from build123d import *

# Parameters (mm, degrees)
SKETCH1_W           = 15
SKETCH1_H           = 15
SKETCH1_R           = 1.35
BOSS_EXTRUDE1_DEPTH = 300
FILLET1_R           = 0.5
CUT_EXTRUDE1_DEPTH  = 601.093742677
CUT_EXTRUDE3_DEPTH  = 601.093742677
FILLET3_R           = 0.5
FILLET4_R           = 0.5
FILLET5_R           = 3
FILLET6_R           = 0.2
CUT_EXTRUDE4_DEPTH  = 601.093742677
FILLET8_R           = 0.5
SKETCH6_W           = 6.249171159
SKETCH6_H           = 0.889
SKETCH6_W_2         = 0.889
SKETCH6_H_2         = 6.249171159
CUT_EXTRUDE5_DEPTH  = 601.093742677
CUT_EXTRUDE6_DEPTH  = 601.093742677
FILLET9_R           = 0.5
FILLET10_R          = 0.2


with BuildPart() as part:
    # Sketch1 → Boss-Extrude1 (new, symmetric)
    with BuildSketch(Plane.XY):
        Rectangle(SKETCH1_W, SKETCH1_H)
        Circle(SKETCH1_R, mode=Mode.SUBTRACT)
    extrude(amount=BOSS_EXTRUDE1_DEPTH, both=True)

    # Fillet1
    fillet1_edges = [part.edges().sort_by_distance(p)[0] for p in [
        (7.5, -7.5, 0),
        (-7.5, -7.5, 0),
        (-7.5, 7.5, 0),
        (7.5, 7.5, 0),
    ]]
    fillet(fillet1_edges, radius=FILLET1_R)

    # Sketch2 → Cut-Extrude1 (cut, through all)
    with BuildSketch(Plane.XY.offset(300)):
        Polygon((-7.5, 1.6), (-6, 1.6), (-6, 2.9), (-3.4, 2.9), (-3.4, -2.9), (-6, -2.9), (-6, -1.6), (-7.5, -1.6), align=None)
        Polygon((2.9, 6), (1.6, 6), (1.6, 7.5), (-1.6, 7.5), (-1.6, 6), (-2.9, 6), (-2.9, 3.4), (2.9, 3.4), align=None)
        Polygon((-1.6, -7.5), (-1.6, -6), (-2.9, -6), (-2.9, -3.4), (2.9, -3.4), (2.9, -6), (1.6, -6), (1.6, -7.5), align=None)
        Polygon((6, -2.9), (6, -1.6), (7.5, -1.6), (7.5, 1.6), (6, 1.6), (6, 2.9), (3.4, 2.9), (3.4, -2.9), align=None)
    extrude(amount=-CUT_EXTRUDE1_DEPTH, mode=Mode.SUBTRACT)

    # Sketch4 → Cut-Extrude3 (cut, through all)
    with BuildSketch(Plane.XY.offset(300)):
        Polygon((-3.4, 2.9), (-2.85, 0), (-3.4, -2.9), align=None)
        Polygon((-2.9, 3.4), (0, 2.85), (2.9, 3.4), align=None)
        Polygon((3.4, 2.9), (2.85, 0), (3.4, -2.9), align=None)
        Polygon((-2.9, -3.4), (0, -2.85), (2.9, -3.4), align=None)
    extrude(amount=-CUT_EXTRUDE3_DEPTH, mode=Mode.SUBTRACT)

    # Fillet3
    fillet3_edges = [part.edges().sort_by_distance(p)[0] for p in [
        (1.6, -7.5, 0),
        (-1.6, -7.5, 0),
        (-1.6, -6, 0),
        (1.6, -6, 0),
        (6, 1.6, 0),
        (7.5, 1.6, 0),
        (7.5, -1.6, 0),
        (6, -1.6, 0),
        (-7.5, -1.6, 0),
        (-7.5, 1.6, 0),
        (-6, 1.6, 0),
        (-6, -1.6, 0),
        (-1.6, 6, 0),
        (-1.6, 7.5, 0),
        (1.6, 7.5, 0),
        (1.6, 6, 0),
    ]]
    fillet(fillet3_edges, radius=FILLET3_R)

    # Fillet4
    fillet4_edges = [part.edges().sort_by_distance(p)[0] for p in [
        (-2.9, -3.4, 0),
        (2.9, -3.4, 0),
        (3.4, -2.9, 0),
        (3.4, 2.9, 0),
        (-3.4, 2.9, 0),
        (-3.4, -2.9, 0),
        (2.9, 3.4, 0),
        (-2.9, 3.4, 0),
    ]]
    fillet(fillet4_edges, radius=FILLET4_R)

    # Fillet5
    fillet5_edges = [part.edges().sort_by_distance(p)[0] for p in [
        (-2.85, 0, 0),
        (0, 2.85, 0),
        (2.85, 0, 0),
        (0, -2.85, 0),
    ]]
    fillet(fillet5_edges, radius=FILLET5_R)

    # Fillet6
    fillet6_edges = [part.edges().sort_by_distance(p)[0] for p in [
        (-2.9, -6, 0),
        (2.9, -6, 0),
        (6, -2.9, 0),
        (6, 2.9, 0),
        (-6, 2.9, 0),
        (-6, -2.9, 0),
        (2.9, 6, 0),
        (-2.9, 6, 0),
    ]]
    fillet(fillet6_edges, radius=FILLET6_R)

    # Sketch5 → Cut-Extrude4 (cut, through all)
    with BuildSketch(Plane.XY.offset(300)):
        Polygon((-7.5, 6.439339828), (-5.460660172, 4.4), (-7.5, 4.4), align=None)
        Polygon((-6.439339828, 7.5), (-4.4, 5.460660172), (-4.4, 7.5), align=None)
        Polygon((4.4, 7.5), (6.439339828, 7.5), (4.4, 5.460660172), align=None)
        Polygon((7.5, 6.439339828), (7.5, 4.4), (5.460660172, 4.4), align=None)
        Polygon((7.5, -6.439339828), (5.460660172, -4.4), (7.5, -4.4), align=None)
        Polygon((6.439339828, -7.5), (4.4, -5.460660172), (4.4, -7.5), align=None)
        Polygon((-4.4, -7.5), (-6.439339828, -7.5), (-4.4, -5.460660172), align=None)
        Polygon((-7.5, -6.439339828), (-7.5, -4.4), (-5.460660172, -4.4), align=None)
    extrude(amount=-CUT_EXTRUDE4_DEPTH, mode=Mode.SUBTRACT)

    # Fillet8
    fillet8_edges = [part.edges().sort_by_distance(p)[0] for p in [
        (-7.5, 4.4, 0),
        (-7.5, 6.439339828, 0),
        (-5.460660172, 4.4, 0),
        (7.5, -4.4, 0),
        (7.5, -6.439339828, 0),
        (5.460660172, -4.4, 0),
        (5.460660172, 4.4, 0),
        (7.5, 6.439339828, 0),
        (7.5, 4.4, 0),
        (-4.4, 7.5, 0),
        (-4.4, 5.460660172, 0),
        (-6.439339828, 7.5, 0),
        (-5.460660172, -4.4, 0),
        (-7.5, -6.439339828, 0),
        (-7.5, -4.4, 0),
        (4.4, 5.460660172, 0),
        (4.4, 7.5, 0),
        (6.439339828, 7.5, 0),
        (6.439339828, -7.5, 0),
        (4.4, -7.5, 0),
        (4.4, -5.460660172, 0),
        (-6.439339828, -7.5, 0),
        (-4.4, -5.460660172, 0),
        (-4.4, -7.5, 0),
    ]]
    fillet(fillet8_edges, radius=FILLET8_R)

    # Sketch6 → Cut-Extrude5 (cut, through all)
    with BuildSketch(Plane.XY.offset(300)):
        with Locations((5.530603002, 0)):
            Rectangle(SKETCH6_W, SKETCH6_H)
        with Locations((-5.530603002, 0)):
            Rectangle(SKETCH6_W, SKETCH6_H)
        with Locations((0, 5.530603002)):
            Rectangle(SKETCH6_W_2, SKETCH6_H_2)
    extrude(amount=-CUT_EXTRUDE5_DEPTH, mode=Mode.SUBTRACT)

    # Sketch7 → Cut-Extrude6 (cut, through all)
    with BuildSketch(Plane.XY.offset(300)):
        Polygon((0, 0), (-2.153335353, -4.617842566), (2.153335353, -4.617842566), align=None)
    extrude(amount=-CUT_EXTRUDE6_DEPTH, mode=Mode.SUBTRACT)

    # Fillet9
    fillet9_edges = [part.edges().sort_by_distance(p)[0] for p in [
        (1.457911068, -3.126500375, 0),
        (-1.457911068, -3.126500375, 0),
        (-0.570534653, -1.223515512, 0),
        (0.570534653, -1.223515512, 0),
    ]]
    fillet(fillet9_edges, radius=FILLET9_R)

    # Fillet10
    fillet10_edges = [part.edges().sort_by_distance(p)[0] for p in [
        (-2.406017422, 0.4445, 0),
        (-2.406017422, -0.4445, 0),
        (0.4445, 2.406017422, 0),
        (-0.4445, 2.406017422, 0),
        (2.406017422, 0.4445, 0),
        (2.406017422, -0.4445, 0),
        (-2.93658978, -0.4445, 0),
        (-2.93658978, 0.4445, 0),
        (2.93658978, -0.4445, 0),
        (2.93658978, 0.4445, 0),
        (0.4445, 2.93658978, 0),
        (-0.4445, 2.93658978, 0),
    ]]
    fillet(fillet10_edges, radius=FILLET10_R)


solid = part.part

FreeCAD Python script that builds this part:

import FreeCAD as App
import Part
import Sketcher

V = App.Vector
Q = App.Units.Quantity


def edges_at(feature, points):
    """Names of the edges that pass closest to the given points."""
    edges = feature.Shape.Edges
    near = lambda p: min(range(len(edges)), key=lambda i: edges[i].distToShape(Part.Vertex(*p))[0])
    return sorted({f"Edge{near(p) + 1}" for p in points})

doc = App.newDocument("Part")
params = doc.addObject("Spreadsheet::Sheet", "Params")
for row, (alias, value) in enumerate([
    ("sketch1_diameter", "2.7 mm"),
    ("sketch1_width", "15 mm"),
    ("pad1_length", "600 mm"),
    ("fillet_radius", "0.5 mm"),
    ("sketch2_width", "1.5 mm"),
    ("sketch2_width2", "2.6 mm"),
    ("sketch2_width3", "1.3 mm"),
    ("sketch2_width4", "3.2 mm"),
    ("sketch3_width", "5.8 mm"),
    ("fillet2_radius", "0.5 mm"),
    ("fillet3_radius", "0.5 mm"),
    ("fillet4_radius", "3 mm"),
    ("fillet5_radius", "0.2 mm"),
    ("fillet6_radius", "0.5 mm"),
    ("fillet7_radius", "0.5 mm"),
    ("fillet8_radius", "0.2 mm"),
], start=1):
    params.set(f"A{row}", alias)
    params.set(f"B{row}", "=" + value)
    params.setAlias(f"B{row}", alias)

body = doc.addObject("PartDesign::Body", "Body")

# Sketch on XY plane
sketch1 = doc.addObject("Sketcher::SketchObject", "Sketch")
body.addObject(sketch1)
sketch1.AttachmentSupport = (doc.XY_Plane, [""])
sketch1.MapMode = "FlatFace"
sketch1.addGeometry([
    Part.LineSegment(V(-7.5, 7.5, 0), V(-7.5, -7.5, 0)),  # 0
    Part.LineSegment(V(-7.5, -7.5, 0), V(7.5, -7.5, 0)),  # 1
    Part.LineSegment(V(7.5, -7.5, 0), V(7.5, 7.5, 0)),  # 2
    Part.LineSegment(V(7.5, 7.5, 0), V(-7.5, 7.5, 0)),  # 3
    Part.Circle(V(0, 0, 0), V(0, 0, 1), 1.35),  # 4
], False)
sketch1.addConstraint([
    Sketcher.Constraint("Coincident", 0, 2, 1, 1),
    Sketcher.Constraint("Coincident", 1, 2, 2, 1),
    Sketcher.Constraint("Coincident", 2, 2, 3, 1),
    Sketcher.Constraint("Coincident", 3, 2, 0, 1),
    Sketcher.Constraint("Vertical", 0),
    Sketcher.Constraint("Horizontal", 1),
    Sketcher.Constraint("Vertical", 2),
    Sketcher.Constraint("Horizontal", 3),
    Sketcher.Constraint("Coincident", 4, 3, -1, 1),
    Sketcher.Constraint("Symmetric", 0, 2, 2, 2, -1, 1),
    Sketcher.Constraint("Equal", 3, 0),
    Sketcher.Constraint("Diameter", 4, Q("2.7 mm")),
    Sketcher.Constraint("DistanceX", 1, 1, 1, 2, Q("15 mm")),
])
sketch1.setExpression("Constraints[11]", "Params.sketch1_diameter")
sketch1.setExpression("Constraints[12]", "Params.sketch1_width")
pad1 = doc.addObject("PartDesign::Pad", "Pad")
body.addObject(pad1)
pad1.Profile = sketch1
pad1.setExpression("Length", "Params.pad1_length")
pad1.Midplane = True
doc.recompute()

fillet = doc.addObject("PartDesign::Fillet", "Fillet")
body.addObject(fillet)
fillet.Base = (pad1, edges_at(pad1, [
    (7.5, -7.5, 0),
    (-7.5, -7.5, 0),
    (-7.5, 7.5, 0),
    (7.5, 7.5, 0),
]))
fillet.setExpression("Radius", "Params.fillet_radius")

# Sketch on XY plane
sketch2 = doc.addObject("Sketcher::SketchObject", "Sketch001")
body.addObject(sketch2)
sketch2.AttachmentSupport = (doc.XY_Plane, [""])
sketch2.MapMode = "FlatFace"
sketch2.AttachmentOffset = App.Placement(V(0, 0, 300), App.Rotation())
sketch2.addGeometry([
    Part.LineSegment(V(-6, 1.6, 0), V(-7.5, 1.6, 0)),  # 0
    Part.LineSegment(V(-7.5, 1.6, 0), V(-7.5, -1.6, 0)),  # 1
    Part.LineSegment(V(-7.5, -1.6, 0), V(-6, -1.6, 0)),  # 2
    Part.LineSegment(V(-6, -1.6, 0), V(-6, -2.9, 0)),  # 3
    Part.LineSegment(V(-6, -2.9, 0), V(-3.4, -2.9, 0)),  # 4
    Part.LineSegment(V(-3.4, -2.9, 0), V(-3.4, 2.9, 0)),  # 5
    Part.LineSegment(V(-3.4, 2.9, 0), V(-6, 2.9, 0)),  # 6
    Part.LineSegment(V(-6, 2.9, 0), V(-6, 1.6, 0)),  # 7
    Part.LineSegment(V(2.9, 6, 0), V(1.6, 6, 0)),  # 8
    Part.LineSegment(V(1.6, 6, 0), V(1.6, 7.5, 0)),  # 9
    Part.LineSegment(V(1.6, 7.5, 0), V(-1.6, 7.5, 0)),  # 10
    Part.LineSegment(V(-1.6, 7.5, 0), V(-1.6, 6, 0)),  # 11
    Part.LineSegment(V(-1.6, 6, 0), V(-2.9, 6, 0)),  # 12
    Part.LineSegment(V(-2.9, 6, 0), V(-2.9, 3.4, 0)),  # 13
    Part.LineSegment(V(-2.9, 3.4, 0), V(2.9, 3.4, 0)),  # 14
    Part.LineSegment(V(2.9, 3.4, 0), V(2.9, 6, 0)),  # 15
    Part.LineSegment(V(-1.6, -6, 0), V(-1.6, -7.5, 0)),  # 16
    Part.LineSegment(V(-1.6, -7.5, 0), V(1.6, -7.5, 0)),  # 17
    Part.LineSegment(V(1.6, -7.5, 0), V(1.6, -6, 0)),  # 18
    Part.LineSegment(V(1.6, -6, 0), V(2.9, -6, 0)),  # 19
    Part.LineSegment(V(2.9, -6, 0), V(2.9, -3.4, 0)),  # 20
    Part.LineSegment(V(2.9, -3.4, 0), V(-2.9, -3.4, 0)),  # 21
    Part.LineSegment(V(-2.9, -3.4, 0), V(-2.9, -6, 0)),  # 22
    Part.LineSegment(V(-2.9, -6, 0), V(-1.6, -6, 0)),  # 23
    Part.LineSegment(V(6, -2.9, 0), V(6, -1.6, 0)),  # 24
    Part.LineSegment(V(6, -1.6, 0), V(7.5, -1.6, 0)),  # 25
    Part.LineSegment(V(7.5, -1.6, 0), V(7.5, 1.6, 0)),  # 26
    Part.LineSegment(V(7.5, 1.6, 0), V(6, 1.6, 0)),  # 27
    Part.LineSegment(V(6, 1.6, 0), V(6, 2.9, 0)),  # 28
    Part.LineSegment(V(6, 2.9, 0), V(3.4, 2.9, 0)),  # 29
    Part.LineSegment(V(3.4, 2.9, 0), V(3.4, -2.9, 0)),  # 30
    Part.LineSegment(V(3.4, -2.9, 0), V(6, -2.9, 0)),  # 31
], False)
sketch2.addConstraint([
    Sketcher.Constraint("Coincident", 0, 2, 1, 1),
    Sketcher.Constraint("Coincident", 1, 2, 2, 1),
    Sketcher.Constraint("Coincident", 2, 2, 3, 1),
    Sketcher.Constraint("Coincident", 3, 2, 4, 1),
    Sketcher.Constraint("Coincident", 4, 2, 5, 1),
    Sketcher.Constraint("Coincident", 5, 2, 6, 1),
    Sketcher.Constraint("Coincident", 6, 2, 7, 1),
    Sketcher.Constraint("Coincident", 7, 2, 0, 1),
    Sketcher.Constraint("Coincident", 8, 2, 9, 1),
    Sketcher.Constraint("Coincident", 9, 2, 10, 1),
    Sketcher.Constraint("Coincident", 10, 2, 11, 1),
    Sketcher.Constraint("Coincident", 11, 2, 12, 1),
    Sketcher.Constraint("Coincident", 12, 2, 13, 1),
    Sketcher.Constraint("Coincident", 13, 2, 14, 1),
    Sketcher.Constraint("Coincident", 14, 2, 15, 1),
    Sketcher.Constraint("Coincident", 15, 2, 8, 1),
    Sketcher.Constraint("Coincident", 16, 2, 17, 1),
    Sketcher.Constraint("Coincident", 17, 2, 18, 1),
    Sketcher.Constraint("Coincident", 18, 2, 19, 1),
    Sketcher.Constraint("Coincident", 19, 2, 20, 1),
    Sketcher.Constraint("Coincident", 20, 2, 21, 1),
    Sketcher.Constraint("Coincident", 21, 2, 22, 1),
    Sketcher.Constraint("Coincident", 22, 2, 23, 1),
    Sketcher.Constraint("Coincident", 23, 2, 16, 1),
    Sketcher.Constraint("Coincident", 24, 2, 25, 1),
    Sketcher.Constraint("Coincident", 25, 2, 26, 1),
    Sketcher.Constraint("Coincident", 26, 2, 27, 1),
    Sketcher.Constraint("Coincident", 27, 2, 28, 1),
    Sketcher.Constraint("Coincident", 28, 2, 29, 1),
    Sketcher.Constraint("Coincident", 29, 2, 30, 1),
    Sketcher.Constraint("Coincident", 30, 2, 31, 1),
    Sketcher.Constraint("Coincident", 31, 2, 24, 1),
    Sketcher.Constraint("Horizontal", 0),
    Sketcher.Constraint("Vertical", 1),
    Sketcher.Constraint("Horizontal", 2),
    Sketcher.Constraint("Vertical", 3),
    Sketcher.Constraint("Horizontal", 4),
    Sketcher.Constraint("Vertical", 5),
    Sketcher.Constraint("Horizontal", 6),
    Sketcher.Constraint("Vertical", 7),
    Sketcher.Constraint("Horizontal", 8),
    Sketcher.Constraint("Vertical", 9),
    Sketcher.Constraint("Horizontal", 10),
    Sketcher.Constraint("Vertical", 11),
    Sketcher.Constraint("Horizontal", 12),
    Sketcher.Constraint("Vertical", 13),
    Sketcher.Constraint("Horizontal", 14),
    Sketcher.Constraint("Vertical", 15),
    Sketcher.Constraint("Vertical", 16),
    Sketcher.Constraint("Horizontal", 17),
    Sketcher.Constraint("Vertical", 18),
    Sketcher.Constraint("Horizontal", 19),
    Sketcher.Constraint("Vertical", 20),
    Sketcher.Constraint("Horizontal", 21),
    Sketcher.Constraint("Vertical", 22),
    Sketcher.Constraint("Horizontal", 23),
    Sketcher.Constraint("Vertical", 24),
    Sketcher.Constraint("Horizontal", 25),
    Sketcher.Constraint("Vertical", 26),
    Sketcher.Constraint("Horizontal", 27),
    Sketcher.Constraint("Vertical", 28),
    Sketcher.Constraint("Horizontal", 29),
    Sketcher.Constraint("Vertical", 30),
    Sketcher.Constraint("Horizontal", 31),
    Sketcher.Constraint("Symmetric", 9, 2, 16, 2, -1, 1),
    Sketcher.Constraint("Symmetric", 11, 2, 18, 2, -1, 1),
    Sketcher.Constraint("Symmetric", 13, 2, 20, 2, -1, 1),
    Sketcher.Constraint("Symmetric", 15, 2, 22, 2, -1, 1),
    Sketcher.Constraint("Symmetric", 7, 2, 24, 2, -1, 1),
    Sketcher.Constraint("Symmetric", 1, 2, 26, 2, -1, 1),
    Sketcher.Constraint("Symmetric", 3, 2, 28, 2, -1, 1),
    Sketcher.Constraint("Symmetric", 5, 2, 30, 2, -1, 1),
    Sketcher.Constraint("Symmetric", 8, 2, 11, 2, -2),
    Sketcher.Constraint("Symmetric", 2, 2, 24, 2, -2),
    Sketcher.Constraint("Horizontal", 6, 2, 28, 2),
    Sketcher.Constraint("Vertical", 15, 2, 19, 2),
    Sketcher.Constraint("Equal", 17, 1),
    Sketcher.Constraint("Equal", 23, 3),
    Sketcher.Constraint("Equal", 27, 9),
    Sketcher.Constraint("Equal", 31, 13),
    Sketcher.Constraint("DistanceX", 0, 2, 0, 1, Q("1.5 mm")),
    Sketcher.Constraint("DistanceX", 4, 1, 4, 2, Q("2.6 mm")),
    Sketcher.Constraint("DistanceX", 8, 2, 8, 1, Q("1.3 mm")),
    Sketcher.Constraint("DistanceX", 10, 2, 10, 1, Q("3.2 mm")),
    Sketcher.Constraint("DistanceX", 2, 2, -1, 1, Q("6 mm")),
    Sketcher.Constraint("DistanceY", -1, 1, 8, 2, Q("6 mm")),
])
sketch2.setExpression("Constraints[80]", "Params.sketch2_width")
sketch2.setExpression("Constraints[81]", "Params.sketch2_width2")
sketch2.setExpression("Constraints[82]", "Params.sketch2_width3")
sketch2.setExpression("Constraints[83]", "Params.sketch2_width4")
pocket1 = doc.addObject("PartDesign::Pocket", "Pocket")
body.addObject(pocket1)
pocket1.Profile = sketch2
pocket1.Type = "ThroughAll"

# Sketch on XY plane
sketch3 = doc.addObject("Sketcher::SketchObject", "Sketch002")
body.addObject(sketch3)
sketch3.AttachmentSupport = (doc.XY_Plane, [""])
sketch3.MapMode = "FlatFace"
sketch3.AttachmentOffset = App.Placement(V(0, 0, 300), App.Rotation())
sketch3.addGeometry([
    Part.LineSegment(V(-2.85, 0, 0), V(-3.4, 2.9, 0)),  # 0
    Part.LineSegment(V(-3.4, 2.9, 0), V(-3.4, -2.9, 0)),  # 1
    Part.LineSegment(V(-3.4, -2.9, 0), V(-2.85, 0, 0)),  # 2
    Part.LineSegment(V(-2.9, 3.4, 0), V(0, 2.85, 0)),  # 3
    Part.LineSegment(V(0, 2.85, 0), V(2.9, 3.4, 0)),  # 4
    Part.LineSegment(V(2.9, 3.4, 0), V(-2.9, 3.4, 0)),  # 5
    Part.LineSegment(V(3.4, 2.9, 0), V(2.85, 0, 0)),  # 6
    Part.LineSegment(V(2.85, 0, 0), V(3.4, -2.9, 0)),  # 7
    Part.LineSegment(V(3.4, -2.9, 0), V(3.4, 2.9, 0)),  # 8
    Part.LineSegment(V(0, -2.85, 0), V(-2.9, -3.4, 0)),  # 9
    Part.LineSegment(V(-2.9, -3.4, 0), V(2.9, -3.4, 0)),  # 10
    Part.LineSegment(V(2.9, -3.4, 0), V(0, -2.85, 0)),  # 11
], False)
sketch3.addConstraint([
    Sketcher.Constraint("Coincident", 0, 2, 1, 1),
    Sketcher.Constraint("Coincident", 1, 2, 2, 1),
    Sketcher.Constraint("Coincident", 2, 2, 0, 1),
    Sketcher.Constraint("Coincident", 3, 2, 4, 1),
    Sketcher.Constraint("Coincident", 4, 2, 5, 1),
    Sketcher.Constraint("Coincident", 5, 2, 3, 1),
    Sketcher.Constraint("Coincident", 6, 2, 7, 1),
    Sketcher.Constraint("Coincident", 7, 2, 8, 1),
    Sketcher.Constraint("Coincident", 8, 2, 6, 1),
    Sketcher.Constraint("Coincident", 9, 2, 10, 1),
    Sketcher.Constraint("Coincident", 10, 2, 11, 1),
    Sketcher.Constraint("Coincident", 11, 2, 9, 1),
    Sketcher.Constraint("Vertical", 1),
    Sketcher.Constraint("Horizontal", 5),
    Sketcher.Constraint("Vertical", 8),
    Sketcher.Constraint("Horizontal", 10),
    Sketcher.Constraint("Symmetric", 2, 2, 6, 2, -1, 1),
    Sketcher.Constraint("Symmetric", 0, 2, 7, 2, -1, 1),
    Sketcher.Constraint("Symmetric", 4, 2, 9, 2, -1, 1),
    Sketcher.Constraint("Symmetric", 3, 2, 11, 2, -1, 1),
    Sketcher.Constraint("PointOnObject", 2, 2, -1),
    Sketcher.Constraint("PointOnObject", 3, 2, -2),
    Sketcher.Constraint("Perpendicular", 2, 3),
    Sketcher.Constraint("Perpendicular", 0, 4),
    Sketcher.Constraint("Perpendicular", 3, 6),
    Sketcher.Constraint("Perpendicular", 6, 11),
    Sketcher.Constraint("Horizontal", 1, 2, 7, 2),
    Sketcher.Constraint("Equal", 10, 1),
    Sketcher.Constraint("DistanceX", 5, 2, 5, 1, Q("5.8 mm")),
    Sketcher.Constraint("DistanceX", 0, 2, -1, 1, Q("3.4 mm")),
    Sketcher.Constraint("DistanceY", -1, 1, 4, 2, Q("3.4 mm")),
    Sketcher.Constraint("DistanceX", 2, 2, 6, 2, Q("5.7 mm")),
])
sketch3.setExpression("Constraints[28]", "Params.sketch3_width")
pocket2 = doc.addObject("PartDesign::Pocket", "Pocket001")
body.addObject(pocket2)
pocket2.Profile = sketch3
pocket2.Type = "ThroughAll"
doc.recompute()

fillet2 = doc.addObject("PartDesign::Fillet", "Fillet001")
body.addObject(fillet2)
fillet2.Base = (pocket2, edges_at(pocket2, [
    (1.6, -7.5, 0),
    (-1.6, -7.5, 0),
    (-1.6, -6, 0),
    (1.6, -6, 0),
    (6, 1.6, 0),
    (7.5, 1.6, 0),
    (7.5, -1.6, 0),
    (6, -1.6, 0),
    (-7.5, -1.6, 0),
    (-7.5, 1.6, 0),
    (-6, 1.6, 0),
    (-6, -1.6, 0),
    (-1.6, 6, 0),
    (-1.6, 7.5, 0),
    (1.6, 7.5, 0),
    (1.6, 6, 0),
]))
fillet2.setExpression("Radius", "Params.fillet2_radius")
doc.recompute()

fillet3 = doc.addObject("PartDesign::Fillet", "Fillet002")
body.addObject(fillet3)
fillet3.Base = (fillet2, edges_at(fillet2, [
    (-2.9, -3.4, 0),
    (2.9, -3.4, 0),
    (3.4, -2.9, 0),
    (3.4, 2.9, 0),
    (-3.4, 2.9, 0),
    (-3.4, -2.9, 0),
    (2.9, 3.4, 0),
    (-2.9, 3.4, 0),
]))
fillet3.setExpression("Radius", "Params.fillet3_radius")
doc.recompute()

fillet4 = doc.addObject("PartDesign::Fillet", "Fillet003")
body.addObject(fillet4)
fillet4.Base = (fillet3, edges_at(fillet3, [
    (-2.85, 0, 0),
    (0, 2.85, 0),
    (2.85, 0, 0),
    (0, -2.85, 0),
]))
fillet4.setExpression("Radius", "Params.fillet4_radius")
doc.recompute()

fillet5 = doc.addObject("PartDesign::Fillet", "Fillet004")
body.addObject(fillet5)
fillet5.Base = (fillet4, edges_at(fillet4, [
    (-2.9, -6, 0),
    (2.9, -6, 0),
    (6, -2.9, 0),
    (6, 2.9, 0),
    (-6, 2.9, 0),
    (-6, -2.9, 0),
    (2.9, 6, 0),
    (-2.9, 6, 0),
]))
fillet5.setExpression("Radius", "Params.fillet5_radius")

# Sketch on XY plane
sketch4 = doc.addObject("Sketcher::SketchObject", "Sketch003")
body.addObject(sketch4)
sketch4.AttachmentSupport = (doc.XY_Plane, [""])
sketch4.MapMode = "FlatFace"
sketch4.AttachmentOffset = App.Placement(V(0, 0, 300), App.Rotation())
sketch4.addGeometry([
    Part.LineSegment(V(-5.46066, 4.4, 0), V(-7.5, 6.43934, 0)),  # 0
    Part.LineSegment(V(-7.5, 6.43934, 0), V(-7.5, 4.4, 0)),  # 1
    Part.LineSegment(V(-7.5, 4.4, 0), V(-5.46066, 4.4, 0)),  # 2
    Part.LineSegment(V(-6.43934, 7.5, 0), V(-4.4, 5.46066, 0)),  # 3
    Part.LineSegment(V(-4.4, 5.46066, 0), V(-4.4, 7.5, 0)),  # 4
    Part.LineSegment(V(-4.4, 7.5, 0), V(-6.43934, 7.5, 0)),  # 5
    Part.LineSegment(V(6.43934, 7.5, 0), V(4.4, 7.5, 0)),  # 6
    Part.LineSegment(V(4.4, 7.5, 0), V(4.4, 5.46066, 0)),  # 7
    Part.LineSegment(V(4.4, 5.46066, 0), V(6.43934, 7.5, 0)),  # 8
    Part.LineSegment(V(7.5, 4.4, 0), V(7.5, 6.43934, 0)),  # 9
    Part.LineSegment(V(7.5, 6.43934, 0), V(5.46066, 4.4, 0)),  # 10
    Part.LineSegment(V(5.46066, 4.4, 0), V(7.5, 4.4, 0)),  # 11
    Part.LineSegment(V(5.46066, -4.4, 0), V(7.5, -6.43934, 0)),  # 12
    Part.LineSegment(V(7.5, -6.43934, 0), V(7.5, -4.4, 0)),  # 13
    Part.LineSegment(V(7.5, -4.4, 0), V(5.46066, -4.4, 0)),  # 14
    Part.LineSegment(V(6.43934, -7.5, 0), V(4.4, -5.46066, 0)),  # 15
    Part.LineSegment(V(4.4, -5.46066, 0), V(4.4, -7.5, 0)),  # 16
    Part.LineSegment(V(4.4, -7.5, 0), V(6.43934, -7.5, 0)),  # 17
    Part.LineSegment(V(-6.43934, -7.5, 0), V(-4.4, -7.5, 0)),  # 18
    Part.LineSegment(V(-4.4, -7.5, 0), V(-4.4, -5.46066, 0)),  # 19
    Part.LineSegment(V(-4.4, -5.46066, 0), V(-6.43934, -7.5, 0)),  # 20
    Part.LineSegment(V(-7.5, -4.4, 0), V(-7.5, -6.43934, 0)),  # 21
    Part.LineSegment(V(-7.5, -6.43934, 0), V(-5.46066, -4.4, 0)),  # 22
    Part.LineSegment(V(-5.46066, -4.4, 0), V(-7.5, -4.4, 0)),  # 23
], False)
sketch4.addConstraint([
    Sketcher.Constraint("Coincident", 0, 2, 1, 1),
    Sketcher.Constraint("Coincident", 1, 2, 2, 1),
    Sketcher.Constraint("Coincident", 2, 2, 0, 1),
    Sketcher.Constraint("Coincident", 3, 2, 4, 1),
    Sketcher.Constraint("Coincident", 4, 2, 5, 1),
    Sketcher.Constraint("Coincident", 5, 2, 3, 1),
    Sketcher.Constraint("Coincident", 6, 2, 7, 1),
    Sketcher.Constraint("Coincident", 7, 2, 8, 1),
    Sketcher.Constraint("Coincident", 8, 2, 6, 1),
    Sketcher.Constraint("Coincident", 9, 2, 10, 1),
    Sketcher.Constraint("Coincident", 10, 2, 11, 1),
    Sketcher.Constraint("Coincident", 11, 2, 9, 1),
    Sketcher.Constraint("Coincident", 12, 2, 13, 1),
    Sketcher.Constraint("Coincident", 13, 2, 14, 1),
    Sketcher.Constraint("Coincident", 14, 2, 12, 1),
    Sketcher.Constraint("Coincident", 15, 2, 16, 1),
    Sketcher.Constraint("Coincident", 16, 2, 17, 1),
    Sketcher.Constraint("Coincident", 17, 2, 15, 1),
    Sketcher.Constraint("Coincident", 18, 2, 19, 1),
    Sketcher.Constraint("Coincident", 19, 2, 20, 1),
    Sketcher.Constraint("Coincident", 20, 2, 18, 1),
    Sketcher.Constraint("Coincident", 21, 2, 22, 1),
    Sketcher.Constraint("Coincident", 22, 2, 23, 1),
    Sketcher.Constraint("Coincident", 23, 2, 21, 1),
    Sketcher.Constraint("Vertical", 1),
    Sketcher.Constraint("Horizontal", 2),
    Sketcher.Constraint("Vertical", 4),
    Sketcher.Constraint("Horizontal", 5),
    Sketcher.Constraint("Horizontal", 6),
    Sketcher.Constraint("Vertical", 7),
    Sketcher.Constraint("Vertical", 9),
    Sketcher.Constraint("Horizontal", 11),
    Sketcher.Constraint("Vertical", 13),
    Sketcher.Constraint("Horizontal", 14),
    Sketcher.Constraint("Vertical", 16),
    Sketcher.Constraint("Horizontal", 17),
    Sketcher.Constraint("Horizontal", 18),
    Sketcher.Constraint("Vertical", 19),
    Sketcher.Constraint("Vertical", 21),
    Sketcher.Constraint("Horizontal", 23),
    Sketcher.Constraint("Symmetric", 0, 2, 12, 2, -1, 1),
    Sketcher.Constraint("Symmetric", 2, 2, 14, 2, -1, 1),
    Sketcher.Constraint("Symmetric", 3, 2, 15, 2, -1, 1),
    Sketcher.Constraint("Symmetric", 5, 2, 17, 2, -1, 1),
    Sketcher.Constraint("Symmetric", 6, 2, 18, 2, -1, 1),
    Sketcher.Constraint("Symmetric", 9, 2, 21, 2, -1, 1),
    Sketcher.Constraint("Symmetric", 10, 2, 22, 2, -1, 1),
    Sketcher.Constraint("Symmetric", 4, 2, 6, 2, -2),
    Sketcher.Constraint("Symmetric", 0, 2, 9, 2, -2),
    Sketcher.Constraint("Symmetric", 2, 2, 10, 2, -2),
    Sketcher.Constraint("Parallel", 0, 3),
    Sketcher.Constraint("Perpendicular", 3, 8),
    Sketcher.Constraint("Parallel", 8, 10),
    Sketcher.Constraint("Perpendicular", 15, 20),
    Sketcher.Constraint("Horizontal", 3, 2, 7, 2),
    Sketcher.Constraint("Horizontal", 15, 2, 19, 2),
    Sketcher.Constraint("Equal", 2, 5),
    Sketcher.Constraint("DistanceX", 0, 2, -1, 1, Q("7.5 mm")),
    Sketcher.Constraint("DistanceY", -1, 1, 1, 2, Q("4.4 mm")),
    Sketcher.Constraint("DistanceX", 3, 2, -1, 1, Q("4.4 mm")),
    Sketcher.Constraint("DistanceY", -1, 1, 4, 2, Q("7.5 mm")),
    Sketcher.Constraint("DistanceX", 2, 1, 2, 2, Q("2.03934 mm")),
])
pocket3 = doc.addObject("PartDesign::Pocket", "Pocket002")
body.addObject(pocket3)
pocket3.Profile = sketch4
pocket3.Type = "ThroughAll"
doc.recompute()

fillet6 = doc.addObject("PartDesign::Fillet", "Fillet005")
body.addObject(fillet6)
fillet6.Base = (pocket3, edges_at(pocket3, [
    (-7.5, 4.4, 0),
    (-7.5, 6.439, 0),
    (-5.461, 4.4, 0),
    (7.5, -4.4, 0),
    (7.5, -6.439, 0),
    (5.461, -4.4, 0),
    (5.461, 4.4, 0),
    (7.5, 6.439, 0),
    (7.5, 4.4, 0),
    (-4.4, 7.5, 0),
    (-4.4, 5.461, 0),
    (-6.439, 7.5, 0),
    (-5.461, -4.4, 0),
    (-7.5, -6.439, 0),
    (-7.5, -4.4, 0),
    (4.4, 5.461, 0),
    (4.4, 7.5, 0),
    (6.439, 7.5, 0),
    (6.439, -7.5, 0),
    (4.4, -7.5, 0),
    (4.4, -5.461, 0),
    (-6.439, -7.5, 0),
    (-4.4, -5.461, 0),
    (-4.4, -7.5, 0),
]))
fillet6.setExpression("Radius", "Params.fillet6_radius")

# Sketch on XY plane
sketch5 = doc.addObject("Sketcher::SketchObject", "Sketch004")
body.addObject(sketch5)
sketch5.AttachmentSupport = (doc.XY_Plane, [""])
sketch5.MapMode = "FlatFace"
sketch5.AttachmentOffset = App.Placement(V(0, 0, 300), App.Rotation())
sketch5.addGeometry([
    Part.LineSegment(V(2.406017, 0.4445, 0), V(2.406017, -0.4445, 0)),  # 0
    Part.LineSegment(V(2.406017, -0.4445, 0), V(8.655189, -0.4445, 0)),  # 1
    Part.LineSegment(V(8.655189, -0.4445, 0), V(8.655189, 0.4445, 0)),  # 2
    Part.LineSegment(V(8.655189, 0.4445, 0), V(2.406017, 0.4445, 0)),  # 3
    Part.LineSegment(V(-8.655189, 0.4445, 0), V(-8.655189, -0.4445, 0)),  # 4
    Part.LineSegment(V(-8.655189, -0.4445, 0), V(-2.406017, -0.4445, 0)),  # 5
    Part.LineSegment(V(-2.406017, -0.4445, 0), V(-2.406017, 0.4445, 0)),  # 6
    Part.LineSegment(V(-2.406017, 0.4445, 0), V(-8.655189, 0.4445, 0)),  # 7
    Part.LineSegment(V(-0.4445, 8.655189, 0), V(-0.4445, 2.406017, 0)),  # 8
    Part.LineSegment(V(-0.4445, 2.406017, 0), V(0.4445, 2.406017, 0)),  # 9
    Part.LineSegment(V(0.4445, 2.406017, 0), V(0.4445, 8.655189, 0)),  # 10
    Part.LineSegment(V(0.4445, 8.655189, 0), V(-0.4445, 8.655189, 0)),  # 11
], False)
sketch5.addConstraint([
    Sketcher.Constraint("Coincident", 0, 2, 1, 1),
    Sketcher.Constraint("Coincident", 1, 2, 2, 1),
    Sketcher.Constraint("Coincident", 2, 2, 3, 1),
    Sketcher.Constraint("Coincident", 3, 2, 0, 1),
    Sketcher.Constraint("Coincident", 4, 2, 5, 1),
    Sketcher.Constraint("Coincident", 5, 2, 6, 1),
    Sketcher.Constraint("Coincident", 6, 2, 7, 1),
    Sketcher.Constraint("Coincident", 7, 2, 4, 1),
    Sketcher.Constraint("Coincident", 8, 2, 9, 1),
    Sketcher.Constraint("Coincident", 9, 2, 10, 1),
    Sketcher.Constraint("Coincident", 10, 2, 11, 1),
    Sketcher.Constraint("Coincident", 11, 2, 8, 1),
    Sketcher.Constraint("Vertical", 0),
    Sketcher.Constraint("Horizontal", 1),
    Sketcher.Constraint("Vertical", 2),
    Sketcher.Constraint("Horizontal", 3),
    Sketcher.Constraint("Vertical", 4),
    Sketcher.Constraint("Horizontal", 5),
    Sketcher.Constraint("Vertical", 6),
    Sketcher.Constraint("Horizontal", 7),
    Sketcher.Constraint("Vertical", 8),
    Sketcher.Constraint("Horizontal", 9),
    Sketcher.Constraint("Vertical", 10),
    Sketcher.Constraint("Horizontal", 11),
    Sketcher.Constraint("Symmetric", 2, 2, 4, 2, -1, 1),
    Sketcher.Constraint("Symmetric", 0, 2, 6, 2, -1, 1),
    Sketcher.Constraint("Horizontal", 1, 2, 4, 2),
    Sketcher.Constraint("Equal", 11, 0),
    Sketcher.Constraint("Equal", 7, 8),
    Sketcher.Constraint("DistanceX", 9, 1, 9, 2, Q("0.889 mm")),
    Sketcher.Constraint("DistanceX", 1, 1, 1, 2, Q("6.249171 mm")),
    Sketcher.Constraint("DistanceX", 8, 2, -1, 1, Q("0.4445 mm")),
    Sketcher.Constraint("DistanceX", -1, 1, 1, 2, Q("8.655189 mm")),
    Sketcher.Constraint("DistanceY", -1, 1, 10, 2, Q("8.655189 mm")),
])
pocket4 = doc.addObject("PartDesign::Pocket", "Pocket003")
body.addObject(pocket4)
pocket4.Profile = sketch5
pocket4.Type = "ThroughAll"

# Sketch on XY plane
sketch6 = doc.addObject("Sketcher::SketchObject", "Sketch005")
body.addObject(sketch6)
sketch6.AttachmentSupport = (doc.XY_Plane, [""])
sketch6.MapMode = "FlatFace"
sketch6.AttachmentOffset = App.Placement(V(0, 0, 300), App.Rotation())
sketch6.addGeometry([
    Part.LineSegment(V(0, 0, 0), V(-2.153335, -4.617843, 0)),
    Part.LineSegment(V(-2.153335, -4.617843, 0), V(2.153335, -4.617843, 0)),
    Part.LineSegment(V(2.153335, -4.617843, 0), V(0, 0, 0)),
], False)
sketch6.addConstraint([
    Sketcher.Constraint("Coincident", 0, 2, 1, 1),
    Sketcher.Constraint("Coincident", 1, 2, 2, 1),
    Sketcher.Constraint("Coincident", 2, 2, 0, 1),
    Sketcher.Constraint("Horizontal", 1),
    Sketcher.Constraint("Coincident", 2, 2, -1, 1),
    Sketcher.Constraint("Equal", 0, 2),
    Sketcher.Constraint("Angle", 0, Q("-115 deg")),
    Sketcher.Constraint("DistanceX", 1, 1, 1, 2, Q("4.306671 mm")),
])
pocket5 = doc.addObject("PartDesign::Pocket", "Pocket004")
body.addObject(pocket5)
pocket5.Profile = sketch6
pocket5.Type = "ThroughAll"
doc.recompute()

fillet7 = doc.addObject("PartDesign::Fillet", "Fillet006")
body.addObject(fillet7)
fillet7.Base = (pocket5, edges_at(pocket5, [
    (1.458, -3.127, 0),
    (-1.458, -3.127, 0),
    (-0.571, -1.224, 0),
    (0.571, -1.224, 0),
]))
fillet7.setExpression("Radius", "Params.fillet7_radius")
doc.recompute()

fillet8 = doc.addObject("PartDesign::Fillet", "Fillet007")
body.addObject(fillet8)
fillet8.Base = (fillet7, edges_at(fillet7, [
    (-2.406, 0.445, 0),
    (-2.406, -0.445, 0),
    (0.445, 2.406, 0),
    (-0.445, 2.406, 0),
    (2.406, 0.445, 0),
    (2.406, -0.445, 0),
    (-2.937, -0.445, 0),
    (-2.937, 0.445, 0),
    (2.937, -0.445, 0),
    (2.937, 0.445, 0),
    (0.445, 2.937, 0),
    (-0.445, 2.937, 0),
]))
fillet8.setExpression("Radius", "Params.fillet8_radius")

doc.recompute()
